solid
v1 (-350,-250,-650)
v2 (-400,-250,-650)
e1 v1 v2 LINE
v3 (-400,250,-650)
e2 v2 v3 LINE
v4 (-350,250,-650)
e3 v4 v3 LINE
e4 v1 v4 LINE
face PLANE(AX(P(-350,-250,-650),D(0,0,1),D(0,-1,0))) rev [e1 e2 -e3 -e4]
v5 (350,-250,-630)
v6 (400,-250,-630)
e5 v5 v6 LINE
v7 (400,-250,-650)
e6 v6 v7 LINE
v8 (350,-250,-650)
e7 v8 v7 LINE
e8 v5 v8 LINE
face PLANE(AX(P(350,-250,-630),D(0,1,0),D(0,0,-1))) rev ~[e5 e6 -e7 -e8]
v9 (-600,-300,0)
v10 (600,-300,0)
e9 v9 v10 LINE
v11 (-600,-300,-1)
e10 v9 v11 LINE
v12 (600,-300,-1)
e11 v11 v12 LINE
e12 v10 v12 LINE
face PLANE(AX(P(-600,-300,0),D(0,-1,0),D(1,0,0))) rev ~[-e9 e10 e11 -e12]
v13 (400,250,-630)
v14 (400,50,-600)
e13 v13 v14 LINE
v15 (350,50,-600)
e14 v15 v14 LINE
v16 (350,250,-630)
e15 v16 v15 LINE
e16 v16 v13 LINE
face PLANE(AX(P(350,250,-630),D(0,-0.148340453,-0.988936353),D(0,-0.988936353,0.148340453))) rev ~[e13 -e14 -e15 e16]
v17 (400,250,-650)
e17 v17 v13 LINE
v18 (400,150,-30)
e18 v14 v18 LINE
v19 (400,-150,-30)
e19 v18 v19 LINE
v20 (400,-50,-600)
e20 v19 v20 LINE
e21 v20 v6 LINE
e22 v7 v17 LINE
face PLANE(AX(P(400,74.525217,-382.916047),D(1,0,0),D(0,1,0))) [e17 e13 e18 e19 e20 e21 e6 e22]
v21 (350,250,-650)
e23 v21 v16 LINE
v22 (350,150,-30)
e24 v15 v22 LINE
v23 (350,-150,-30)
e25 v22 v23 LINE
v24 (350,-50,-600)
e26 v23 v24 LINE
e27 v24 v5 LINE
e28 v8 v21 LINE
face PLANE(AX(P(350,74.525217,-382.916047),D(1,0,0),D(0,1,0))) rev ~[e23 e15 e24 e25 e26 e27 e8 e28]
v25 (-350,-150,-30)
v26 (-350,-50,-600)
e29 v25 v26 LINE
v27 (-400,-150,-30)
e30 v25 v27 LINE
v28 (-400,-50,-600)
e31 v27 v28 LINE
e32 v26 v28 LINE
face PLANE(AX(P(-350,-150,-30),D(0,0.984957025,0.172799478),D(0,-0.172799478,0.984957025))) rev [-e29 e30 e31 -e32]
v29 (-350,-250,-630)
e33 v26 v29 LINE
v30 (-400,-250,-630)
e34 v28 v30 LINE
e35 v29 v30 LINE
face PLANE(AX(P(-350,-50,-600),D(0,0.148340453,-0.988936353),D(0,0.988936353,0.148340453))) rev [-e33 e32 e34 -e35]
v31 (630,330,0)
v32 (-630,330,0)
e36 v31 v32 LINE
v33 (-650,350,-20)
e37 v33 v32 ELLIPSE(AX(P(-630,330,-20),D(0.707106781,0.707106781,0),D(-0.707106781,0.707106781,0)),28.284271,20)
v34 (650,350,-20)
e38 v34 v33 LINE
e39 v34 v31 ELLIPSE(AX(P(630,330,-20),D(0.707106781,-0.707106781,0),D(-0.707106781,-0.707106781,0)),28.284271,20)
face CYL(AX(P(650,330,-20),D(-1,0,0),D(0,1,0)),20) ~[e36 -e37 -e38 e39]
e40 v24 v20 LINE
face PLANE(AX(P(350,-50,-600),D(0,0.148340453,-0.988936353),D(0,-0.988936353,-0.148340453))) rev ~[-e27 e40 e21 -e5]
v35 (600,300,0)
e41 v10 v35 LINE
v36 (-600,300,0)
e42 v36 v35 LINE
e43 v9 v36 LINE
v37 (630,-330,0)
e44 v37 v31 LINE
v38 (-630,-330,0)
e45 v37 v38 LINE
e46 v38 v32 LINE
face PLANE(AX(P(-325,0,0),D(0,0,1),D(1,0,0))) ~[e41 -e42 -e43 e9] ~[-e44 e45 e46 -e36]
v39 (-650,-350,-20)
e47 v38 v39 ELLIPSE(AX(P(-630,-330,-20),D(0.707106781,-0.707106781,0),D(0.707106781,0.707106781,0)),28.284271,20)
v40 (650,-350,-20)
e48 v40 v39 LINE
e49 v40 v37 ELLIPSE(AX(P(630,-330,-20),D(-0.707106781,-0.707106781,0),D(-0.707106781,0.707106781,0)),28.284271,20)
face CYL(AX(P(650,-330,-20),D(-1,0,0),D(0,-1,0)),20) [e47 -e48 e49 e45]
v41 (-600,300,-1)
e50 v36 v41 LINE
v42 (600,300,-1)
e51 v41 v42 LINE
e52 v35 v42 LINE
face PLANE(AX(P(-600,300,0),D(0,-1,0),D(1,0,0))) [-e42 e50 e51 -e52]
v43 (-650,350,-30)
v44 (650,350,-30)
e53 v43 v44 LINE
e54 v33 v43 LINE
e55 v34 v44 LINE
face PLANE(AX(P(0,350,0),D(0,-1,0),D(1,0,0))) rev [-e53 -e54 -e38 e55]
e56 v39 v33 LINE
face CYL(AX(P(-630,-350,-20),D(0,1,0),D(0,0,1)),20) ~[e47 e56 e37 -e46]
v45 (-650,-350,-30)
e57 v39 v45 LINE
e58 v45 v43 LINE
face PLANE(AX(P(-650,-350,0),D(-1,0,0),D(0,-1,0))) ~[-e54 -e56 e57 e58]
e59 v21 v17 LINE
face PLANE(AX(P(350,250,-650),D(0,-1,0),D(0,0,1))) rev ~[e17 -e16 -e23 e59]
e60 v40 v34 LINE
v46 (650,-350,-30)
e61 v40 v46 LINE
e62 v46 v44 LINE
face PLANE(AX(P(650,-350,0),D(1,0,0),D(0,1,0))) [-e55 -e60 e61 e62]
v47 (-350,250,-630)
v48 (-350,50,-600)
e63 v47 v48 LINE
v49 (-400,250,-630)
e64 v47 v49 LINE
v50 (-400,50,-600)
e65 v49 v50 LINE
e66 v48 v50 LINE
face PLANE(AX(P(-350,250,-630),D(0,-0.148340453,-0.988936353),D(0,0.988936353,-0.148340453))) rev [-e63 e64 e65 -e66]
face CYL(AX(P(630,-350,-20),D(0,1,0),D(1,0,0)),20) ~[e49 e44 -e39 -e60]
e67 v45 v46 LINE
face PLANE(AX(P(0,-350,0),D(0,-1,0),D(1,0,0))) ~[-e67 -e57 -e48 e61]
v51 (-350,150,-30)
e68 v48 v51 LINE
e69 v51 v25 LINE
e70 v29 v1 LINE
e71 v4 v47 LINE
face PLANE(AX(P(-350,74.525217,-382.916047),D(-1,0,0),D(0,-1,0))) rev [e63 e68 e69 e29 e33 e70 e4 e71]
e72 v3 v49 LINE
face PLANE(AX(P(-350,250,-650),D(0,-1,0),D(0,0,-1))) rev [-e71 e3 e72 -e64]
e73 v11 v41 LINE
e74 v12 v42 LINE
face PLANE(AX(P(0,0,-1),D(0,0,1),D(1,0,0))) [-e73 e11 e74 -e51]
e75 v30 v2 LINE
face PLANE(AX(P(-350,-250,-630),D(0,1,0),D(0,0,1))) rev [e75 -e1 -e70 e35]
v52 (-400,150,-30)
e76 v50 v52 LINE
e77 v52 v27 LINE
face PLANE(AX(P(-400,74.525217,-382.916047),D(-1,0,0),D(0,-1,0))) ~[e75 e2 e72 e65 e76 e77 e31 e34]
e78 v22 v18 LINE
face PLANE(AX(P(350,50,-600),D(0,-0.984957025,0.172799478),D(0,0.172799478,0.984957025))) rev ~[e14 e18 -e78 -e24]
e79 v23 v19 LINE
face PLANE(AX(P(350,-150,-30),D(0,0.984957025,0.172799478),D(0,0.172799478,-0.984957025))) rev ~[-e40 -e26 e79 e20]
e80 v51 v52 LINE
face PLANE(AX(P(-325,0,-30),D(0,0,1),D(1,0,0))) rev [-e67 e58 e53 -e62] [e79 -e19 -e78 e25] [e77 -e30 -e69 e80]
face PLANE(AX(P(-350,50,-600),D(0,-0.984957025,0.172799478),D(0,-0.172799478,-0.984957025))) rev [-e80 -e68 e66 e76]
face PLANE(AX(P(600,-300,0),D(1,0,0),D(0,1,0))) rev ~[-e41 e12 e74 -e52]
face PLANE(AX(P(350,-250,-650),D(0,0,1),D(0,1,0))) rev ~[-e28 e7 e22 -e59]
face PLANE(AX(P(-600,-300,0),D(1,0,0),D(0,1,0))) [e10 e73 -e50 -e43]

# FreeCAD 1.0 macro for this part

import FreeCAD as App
import Part
import Sketcher
from FreeCAD import Vector
Q = App.Units.Quantity


def edges_at(feature, points):
    """Names of the edges that pass closest to the given points."""
    edges = feature.Shape.Edges
    near = lambda p: min(range(len(edges)), key=lambda i: edges[i].distToShape(Part.Vertex(*p))[0])
    return sorted({f"Edge{near(p) + 1}" for p in points})


def add_polygon(sketch, points):
    """Adds a closed chain of lines whose ends are joined by coincident constraints."""
    first, n = sketch.GeometryCount, len(points)
    for a, b in zip(points, points[1:] + points[:1]):
        sketch.addGeometry(Part.LineSegment(App.Vector(*a, 0), App.Vector(*b, 0)), False)
    for i in range(n):
        sketch.addConstraint(Sketcher.Constraint("Coincident", first + i, 2, first + (i + 1) % n, 1))

doc = App.newDocument("Part")
body = doc.addObject("PartDesign::Body", "Body")

sketch1 = doc.addObject("Sketcher::SketchObject", "Sketch")
body.addObject(sketch1)
sketch1.AttachmentSupport = (doc.XY_Plane, [""])
sketch1.MapMode = "FlatFace"
add_polygon(sketch1, [(0, 350), (0, -350), (650, -350), (650, 350)])
sketch1.addConstraint(Sketcher.Constraint("Vertical", 0))
sketch1.addConstraint(Sketcher.Constraint("Horizontal", 1))
sketch1.addConstraint(Sketcher.Constraint("Vertical", 2))
sketch1.addConstraint(Sketcher.Constraint("Horizontal", 3))
sketch1.addConstraint(Sketcher.Constraint("Symmetric", 0, 2, 3, 2, -1, 1))
sketch1.addConstraint(Sketcher.Constraint("DistanceX", 1, 1, 1, 2, Q("650 mm")))
sketch1.addConstraint(Sketcher.Constraint("DistanceY", 0, 2, 0, 1, Q("700 mm")))
pad1 = doc.addObject("PartDesign::Pad", "Pad")
body.addObject(pad1)
pad1.Profile = sketch1
pad1.Length = 30
pad1.Reversed = True

sketch2 = doc.addObject("Sketcher::SketchObject", "Sketch001")
body.addObject(sketch2)
sketch2.AttachmentSupport = (doc.YZ_Plane, [""])
sketch2.MapMode = "FlatFace"
sketch2.AttachmentOffset = App.Placement(Vector(0, 0, 350), App.Rotation())
add_polygon(sketch2, [(150, -30), (-150, -30), (-50, -600), (-250, -630), (-250, -650), (250, -650), (250, -630), (50, -600)])
sketch2.addConstraint(Sketcher.Constraint("Horizontal", 0))
sketch2.addConstraint(Sketcher.Constraint("Vertical", 3))
sketch2.addConstraint(Sketcher.Constraint("Horizontal", 4))
sketch2.addConstraint(Sketcher.Constraint("Vertical", 5))
sketch2.addConstraint(Sketcher.Constraint("Symmetric", 2, 2, 5, 2, -2))
sketch2.addConstraint(Sketcher.Constraint("Symmetric", 1, 2, 6, 2, -2))
sketch2.addConstraint(Sketcher.Constraint("Equal", 1, 7))
sketch2.addConstraint(Sketcher.Constraint("DistanceX", 0, 2, 0, 1, Q("300 mm")))
sketch2.addConstraint(Sketcher.Constraint("DistanceX", 4, 1, 4, 2, Q("500 mm")))
sketch2.addConstraint(Sketcher.Constraint("DistanceY", 3, 2, 3, 1, Q("20 mm")))
sketch2.addConstraint(Sketcher.Constraint("DistanceY", 0, 2, -1, 1, Q("30 mm")))
sketch2.addConstraint(Sketcher.Constraint("DistanceX", 1, 2, -1, 1, Q("50 mm")))
sketch2.addConstraint(Sketcher.Constraint("DistanceY", 1, 2, -1, 1, Q("600 mm")))
sketch2.addConstraint(Sketcher.Constraint("DistanceY", 2, 2, -1, 1, Q("630 mm")))
pad2 = doc.addObject("PartDesign::Pad", "Pad001")
body.addObject(pad2)
pad2.Profile = sketch2
pad2.Length = 50
body2 = doc.addObject("PartDesign::Body", "Body001")
doc.recompute()

body2.BaseFeature = body
doc.recompute()

mirroring = doc.addObject("Part::Mirroring", "Mirroring")
mirroring.Source = body
mirroring.Base = Vector(0, 0, 0)
mirroring.Normal = Vector(1, 0, 0)
body3 = doc.addObject("PartDesign::Body", "Body002")
body3.BaseFeature = mirroring
boolean = doc.addObject("PartDesign::Boolean", "Boolean")
body2.addObject(boolean)
boolean.Type = "Fuse"
boolean.addObjects([body3])
doc.recompute()

fillet = doc.addObject("PartDesign::Fillet", "Fillet")
body2.addObject(fillet)
fillet.Base = (boolean, edges_at(boolean, [
    (0, 350, 0),
    (-650, 0, 0),
    (0, -350, 0),
    (650, 0, 0),
]))
fillet.Radius = 20

sketch3 = doc.addObject("Sketcher::SketchObject", "Sketch002")
body2.addObject(sketch3)
sketch3.AttachmentSupport = (doc.getObject("XY_Plane001"), [""])
sketch3.MapMode = "FlatFace"
add_polygon(sketch3, [(-600, 300), (-600, -300), (600, -300), (600, 300)])
sketch3.addConstraint(Sketcher.Constraint("Vertical", 0))
sketch3.addConstraint(Sketcher.Constraint("Horizontal", 1))
sketch3.addConstraint(Sketcher.Constraint("Vertical", 2))
sketch3.addConstraint(Sketcher.Constraint("Horizontal", 3))
sketch3.addConstraint(Sketcher.Constraint("Symmetric", 0, 2, 2, 2, -1, 1))
sketch3.addConstraint(Sketcher.Constraint("DistanceX", 1, 1, 1, 2, Q("1200 mm")))
sketch3.addConstraint(Sketcher.Constraint("DistanceY", 0, 2, 0, 1, Q("600 mm")))
pocket1 = doc.addObject("PartDesign::Pocket", "Pocket")
body2.addObject(pocket1)
pocket1.Profile = sketch3
pocket1.Length = 1
mirroring.Visibility = False

doc.recompute()
